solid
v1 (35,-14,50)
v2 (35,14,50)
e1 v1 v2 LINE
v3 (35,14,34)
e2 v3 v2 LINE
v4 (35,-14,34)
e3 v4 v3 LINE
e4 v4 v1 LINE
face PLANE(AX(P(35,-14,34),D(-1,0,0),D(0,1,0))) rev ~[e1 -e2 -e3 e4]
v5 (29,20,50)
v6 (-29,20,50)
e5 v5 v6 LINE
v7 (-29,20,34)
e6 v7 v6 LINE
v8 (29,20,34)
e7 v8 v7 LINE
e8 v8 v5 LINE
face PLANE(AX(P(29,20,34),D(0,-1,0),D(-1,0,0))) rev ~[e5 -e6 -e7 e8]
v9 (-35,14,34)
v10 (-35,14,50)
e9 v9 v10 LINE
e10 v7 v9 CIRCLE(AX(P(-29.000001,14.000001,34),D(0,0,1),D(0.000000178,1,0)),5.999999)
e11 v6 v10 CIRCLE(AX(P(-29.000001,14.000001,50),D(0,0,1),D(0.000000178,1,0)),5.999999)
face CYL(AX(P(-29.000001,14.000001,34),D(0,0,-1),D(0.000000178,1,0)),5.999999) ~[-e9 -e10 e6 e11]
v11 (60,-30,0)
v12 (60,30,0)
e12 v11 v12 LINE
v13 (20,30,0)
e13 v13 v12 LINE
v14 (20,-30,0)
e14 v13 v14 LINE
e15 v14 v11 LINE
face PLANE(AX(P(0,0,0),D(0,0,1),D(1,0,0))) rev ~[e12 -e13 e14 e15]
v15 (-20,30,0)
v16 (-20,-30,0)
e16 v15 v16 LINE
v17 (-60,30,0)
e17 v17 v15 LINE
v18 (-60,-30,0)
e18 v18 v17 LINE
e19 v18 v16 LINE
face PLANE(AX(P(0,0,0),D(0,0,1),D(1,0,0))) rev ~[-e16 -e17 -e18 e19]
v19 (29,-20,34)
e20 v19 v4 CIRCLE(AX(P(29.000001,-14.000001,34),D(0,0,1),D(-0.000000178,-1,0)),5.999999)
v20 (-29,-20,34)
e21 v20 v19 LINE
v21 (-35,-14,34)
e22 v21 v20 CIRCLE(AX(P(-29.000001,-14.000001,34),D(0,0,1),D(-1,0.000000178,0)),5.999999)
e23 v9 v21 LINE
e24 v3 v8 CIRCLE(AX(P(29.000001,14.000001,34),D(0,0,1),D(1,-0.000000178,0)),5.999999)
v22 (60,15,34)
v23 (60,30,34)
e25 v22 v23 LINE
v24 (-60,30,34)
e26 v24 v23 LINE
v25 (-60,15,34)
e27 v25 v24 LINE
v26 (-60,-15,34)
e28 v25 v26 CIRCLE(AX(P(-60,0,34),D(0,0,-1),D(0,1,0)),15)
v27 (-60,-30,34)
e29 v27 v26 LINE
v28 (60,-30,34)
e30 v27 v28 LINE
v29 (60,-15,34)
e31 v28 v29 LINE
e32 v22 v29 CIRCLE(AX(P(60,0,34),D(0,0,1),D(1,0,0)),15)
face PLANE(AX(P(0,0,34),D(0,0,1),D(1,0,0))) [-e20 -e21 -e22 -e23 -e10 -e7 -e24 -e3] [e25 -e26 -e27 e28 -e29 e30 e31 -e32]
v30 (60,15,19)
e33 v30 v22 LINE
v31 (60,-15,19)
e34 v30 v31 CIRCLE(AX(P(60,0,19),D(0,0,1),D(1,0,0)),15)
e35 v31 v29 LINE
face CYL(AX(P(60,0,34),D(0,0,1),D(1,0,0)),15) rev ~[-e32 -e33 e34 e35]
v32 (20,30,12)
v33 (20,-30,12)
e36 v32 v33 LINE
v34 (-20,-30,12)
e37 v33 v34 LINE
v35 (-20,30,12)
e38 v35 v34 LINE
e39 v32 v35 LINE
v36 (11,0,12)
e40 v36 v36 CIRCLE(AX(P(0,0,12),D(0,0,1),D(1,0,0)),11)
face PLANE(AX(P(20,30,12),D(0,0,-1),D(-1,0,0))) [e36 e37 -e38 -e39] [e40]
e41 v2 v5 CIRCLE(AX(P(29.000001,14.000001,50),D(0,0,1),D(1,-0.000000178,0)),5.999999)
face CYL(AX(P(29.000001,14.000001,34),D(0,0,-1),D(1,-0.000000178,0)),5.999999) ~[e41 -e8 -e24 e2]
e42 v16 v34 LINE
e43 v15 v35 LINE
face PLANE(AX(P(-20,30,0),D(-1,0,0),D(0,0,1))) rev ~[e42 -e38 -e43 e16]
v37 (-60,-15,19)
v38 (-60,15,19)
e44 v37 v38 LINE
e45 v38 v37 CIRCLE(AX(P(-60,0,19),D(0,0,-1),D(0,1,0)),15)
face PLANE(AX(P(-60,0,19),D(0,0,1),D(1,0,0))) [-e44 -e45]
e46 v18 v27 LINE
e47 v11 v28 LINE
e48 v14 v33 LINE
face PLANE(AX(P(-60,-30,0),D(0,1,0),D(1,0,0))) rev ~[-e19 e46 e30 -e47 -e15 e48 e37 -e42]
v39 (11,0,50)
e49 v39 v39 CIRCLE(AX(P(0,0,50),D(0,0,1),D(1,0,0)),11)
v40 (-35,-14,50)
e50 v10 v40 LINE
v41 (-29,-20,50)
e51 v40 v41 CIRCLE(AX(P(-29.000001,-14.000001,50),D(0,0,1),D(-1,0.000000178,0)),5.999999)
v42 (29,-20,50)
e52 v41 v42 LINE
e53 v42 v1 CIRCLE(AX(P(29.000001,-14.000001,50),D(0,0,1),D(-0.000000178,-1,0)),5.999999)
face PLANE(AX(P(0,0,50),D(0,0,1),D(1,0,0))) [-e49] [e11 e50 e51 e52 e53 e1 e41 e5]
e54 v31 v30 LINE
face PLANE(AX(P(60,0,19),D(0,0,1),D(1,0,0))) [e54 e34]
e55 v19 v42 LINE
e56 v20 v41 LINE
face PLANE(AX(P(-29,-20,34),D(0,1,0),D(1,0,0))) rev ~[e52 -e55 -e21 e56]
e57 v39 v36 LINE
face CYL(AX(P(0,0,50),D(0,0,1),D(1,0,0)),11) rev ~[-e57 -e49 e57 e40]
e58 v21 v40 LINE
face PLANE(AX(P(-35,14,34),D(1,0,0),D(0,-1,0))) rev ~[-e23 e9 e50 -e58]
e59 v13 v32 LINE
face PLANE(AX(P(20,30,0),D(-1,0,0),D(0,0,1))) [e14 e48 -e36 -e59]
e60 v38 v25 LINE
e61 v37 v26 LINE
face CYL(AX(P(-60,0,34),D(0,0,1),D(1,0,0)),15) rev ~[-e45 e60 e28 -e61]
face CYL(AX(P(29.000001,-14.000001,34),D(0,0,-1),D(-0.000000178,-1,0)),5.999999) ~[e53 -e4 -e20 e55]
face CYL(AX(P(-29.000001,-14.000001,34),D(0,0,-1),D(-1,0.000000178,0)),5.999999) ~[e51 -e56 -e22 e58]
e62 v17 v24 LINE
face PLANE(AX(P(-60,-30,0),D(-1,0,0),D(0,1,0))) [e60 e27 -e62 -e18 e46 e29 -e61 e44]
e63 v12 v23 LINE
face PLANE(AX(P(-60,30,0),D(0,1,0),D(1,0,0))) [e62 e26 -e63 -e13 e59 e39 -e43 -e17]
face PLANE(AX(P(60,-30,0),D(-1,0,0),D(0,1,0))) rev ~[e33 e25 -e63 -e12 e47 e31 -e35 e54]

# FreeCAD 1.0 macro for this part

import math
import FreeCAD as App
import Part
import Sketcher
from FreeCAD import Vector
Q = App.Units.Quantity

doc = App.newDocument("Part")
body = doc.addObject("PartDesign::Body", "Body")

sketch1 = doc.addObject("Sketcher::SketchObject", "Sketch")
body.addObject(sketch1)
sketch1.AttachmentSupport = (doc.XY_Plane, [""])
sketch1.MapMode = "FlatFace"
sketch1.addGeometry([
    Part.LineSegment(Vector(-60, 30, 0), Vector(-60, -30, 0)),
    Part.LineSegment(Vector(-60, -30, 0), Vector(60, -30, 0)),
    Part.LineSegment(Vector(60, -30, 0), Vector(60, 30, 0)),
    Part.LineSegment(Vector(60, 30, 0), Vector(-60, 30, 0)),
], False)
sketch1.addConstraint([
    Sketcher.Constraint("Coincident", 0, 2, 1, 1),
    Sketcher.Constraint("Coincident", 1, 2, 2, 1),
    Sketcher.Constraint("Coincident", 2, 2, 3, 1),
    Sketcher.Constraint("Coincident", 3, 2, 0, 1),
    Sketcher.Constraint("Vertical", 0),
    Sketcher.Constraint("Horizontal", 1),
    Sketcher.Constraint("Vertical", 2),
    Sketcher.Constraint("Horizontal", 3),
    Sketcher.Constraint("Symmetric", 0, 2, 2, 2, -1, 1),
    Sketcher.Constraint("DistanceX", 1, 1, 1, 2, Q("120 mm")),
    Sketcher.Constraint("DistanceY", 0, 2, 0, 1, Q("60 mm")),
])
pad1 = doc.addObject("PartDesign::Pad", "Pad")
body.addObject(pad1)
pad1.Profile = sketch1
pad1.Length = 34

sketch2 = doc.addObject("Sketcher::SketchObject", "Sketch001")
body.addObject(sketch2)
sketch2.AttachmentSupport = (doc.XY_Plane, [""])
sketch2.MapMode = "FlatFace"
sketch2.AttachmentOffset = App.Placement(Vector(0, 0, 34), App.Rotation())
sketch2.addGeometry([
    Part.Circle(Vector(-60, 0, 0), Vector(0, 0, 1), 15),
    Part.Circle(Vector(60, 0, 0), Vector(0, 0, 1), 15),
], False)
sketch2.addConstraint([
    Sketcher.Constraint("Equal", 0, 1),
    Sketcher.Constraint("Symmetric", 0, 3, 1, 3, -1, 1),
    Sketcher.Constraint("PointOnObject", 0, 3, -1),
    Sketcher.Constraint("Diameter", 0, Q("30 mm")),
    Sketcher.Constraint("DistanceX", 0, 3, -1, 1, Q("60 mm")),
])
pocket1 = doc.addObject("PartDesign::Pocket", "Pocket")
body.addObject(pocket1)
pocket1.Profile = sketch2
pocket1.Length = 15

sketch3 = doc.addObject("Sketcher::SketchObject", "Sketch002")
body.addObject(sketch3)
sketch3.AttachmentSupport = (doc.XY_Plane, [""])
sketch3.MapMode = "FlatFace"
sketch3.AttachmentOffset = App.Placement(Vector(0, 0, 34), App.Rotation())
sketch3.addGeometry([
    Part.ArcOfCircle(Part.Circle(Vector(-29.000001, -14.000001, 0), Vector(0, 0, 1), 5.999999), math.radians(179.99999), math.radians(270.00001)),
    Part.LineSegment(Vector(-29, -20, 0), Vector(29, -20, 0)),
    Part.ArcOfCircle(Part.Circle(Vector(29.000001, -14.000001, 0), Vector(0, 0, 1), 5.999999), math.radians(-90.00001), math.radians(0.00001)),
    Part.LineSegment(Vector(35, -14, 0), Vector(35, 14, 0)),
    Part.ArcOfCircle(Part.Circle(Vector(29.000001, 14.000001, 0), Vector(0, 0, 1), 5.999999), math.radians(-0.00001), math.radians(90.00001)),
    Part.LineSegment(Vector(29, 20, 0), Vector(-29, 20, 0)),
    Part.ArcOfCircle(Part.Circle(Vector(-29.000001, 14.000001, 0), Vector(0, 0, 1), 5.999999), math.radians(89.99999), math.radians(180.00001)),
    Part.LineSegment(Vector(-35, 14, 0), Vector(-35, -14, 0)),
], False)
sketch3.addConstraint([
    Sketcher.Constraint("Tangent", 0, 2, 1, 1),
    Sketcher.Constraint("Tangent", 1, 2, 2, 1),
    Sketcher.Constraint("Tangent", 2, 2, 3, 1),
    Sketcher.Constraint("Tangent", 3, 2, 4, 1),
    Sketcher.Constraint("Tangent", 4, 2, 5, 1),
    Sketcher.Constraint("Tangent", 5, 2, 6, 1),
    Sketcher.Constraint("Tangent", 6, 2, 7, 1),
    Sketcher.Constraint("Tangent", 7, 2, 0, 1),
    Sketcher.Constraint("Horizontal", 1),
    Sketcher.Constraint("Vertical", 3),
    Sketcher.Constraint("Horizontal", 5),
    Sketcher.Constraint("Vertical", 7),
    Sketcher.Constraint("Equal", 0, 2),
    Sketcher.Constraint("Equal", 2, 4),
    Sketcher.Constraint("Equal", 4, 6),
    Sketcher.Constraint("Symmetric", 0, 3, 4, 3, -1, 1),
    Sketcher.Constraint("Radius", 0, Q("5.999999 mm")),
    Sketcher.Constraint("DistanceX", 1, 1, 1, 2, Q("58 mm")),
    Sketcher.Constraint("DistanceY", 3, 1, 3, 2, Q("28 mm")),
])
pad2 = doc.addObject("PartDesign::Pad", "Pad001")
body.addObject(pad2)
pad2.Profile = sketch3
pad2.Length = 16

sketch4 = doc.addObject("Sketcher::SketchObject", "Sketch003")
body.addObject(sketch4)
sketch4.AttachmentSupport = (doc.XY_Plane, [""])
sketch4.MapMode = "FlatFace"
sketch4.AttachmentOffset = App.Placement(Vector(0, 0, 50), App.Rotation())
sketch4.addGeometry(Part.Circle(Vector(0, 0, 0), Vector(0, 0, 1), 11), False)
sketch4.addConstraint([
    Sketcher.Constraint("Coincident", 0, 3, -1, 1),
    Sketcher.Constraint("Diameter", 0, Q("22 mm")),
])
pocket2 = doc.addObject("PartDesign::Pocket", "Pocket001")
body.addObject(pocket2)
pocket2.Profile = sketch4
pocket2.Length = 38

sketch5 = doc.addObject("Sketcher::SketchObject", "Sketch004")
body.addObject(sketch5)
sketch5.AttachmentSupport = (doc.XZ_Plane, [""])
sketch5.MapMode = "FlatFace"
sketch5.AttachmentOffset = App.Placement(Vector(0, 0, -30), App.Rotation())
sketch5.addGeometry([
    Part.LineSegment(Vector(20, 12, 0), Vector(20, 0, 0)),
    Part.LineSegment(Vector(20, 0, 0), Vector(-20, 0, 0)),
    Part.LineSegment(Vector(-20, 0, 0), Vector(-20, 12, 0)),
    Part.LineSegment(Vector(-20, 12, 0), Vector(20, 12, 0)),
], False)
sketch5.addConstraint([
    Sketcher.Constraint("Coincident", 0, 2, 1, 1),
    Sketcher.Constraint("Coincident", 1, 2, 2, 1),
    Sketcher.Constraint("Coincident", 2, 2, 3, 1),
    Sketcher.Constraint("Coincident", 3, 2, 0, 1),
    Sketcher.Constraint("Vertical", 0),
    Sketcher.Constraint("Horizontal", 1),
    Sketcher.Constraint("Vertical", 2),
    Sketcher.Constraint("Horizontal", 3),
    Sketcher.Constraint("Symmetric", 0, 2, 1, 2, -1, 1),
    Sketcher.Constraint("DistanceX", 1, 2, 1, 1, Q("40 mm")),
    Sketcher.Constraint("DistanceY", 0, 2, 0, 1, Q("12 mm")),
])
pocket3 = doc.addObject("PartDesign::Pocket", "Pocket002")
body.addObject(pocket3)
pocket3.Profile = sketch5
pocket3.Length = 60
pocket3.Reversed = True

doc.recompute()
